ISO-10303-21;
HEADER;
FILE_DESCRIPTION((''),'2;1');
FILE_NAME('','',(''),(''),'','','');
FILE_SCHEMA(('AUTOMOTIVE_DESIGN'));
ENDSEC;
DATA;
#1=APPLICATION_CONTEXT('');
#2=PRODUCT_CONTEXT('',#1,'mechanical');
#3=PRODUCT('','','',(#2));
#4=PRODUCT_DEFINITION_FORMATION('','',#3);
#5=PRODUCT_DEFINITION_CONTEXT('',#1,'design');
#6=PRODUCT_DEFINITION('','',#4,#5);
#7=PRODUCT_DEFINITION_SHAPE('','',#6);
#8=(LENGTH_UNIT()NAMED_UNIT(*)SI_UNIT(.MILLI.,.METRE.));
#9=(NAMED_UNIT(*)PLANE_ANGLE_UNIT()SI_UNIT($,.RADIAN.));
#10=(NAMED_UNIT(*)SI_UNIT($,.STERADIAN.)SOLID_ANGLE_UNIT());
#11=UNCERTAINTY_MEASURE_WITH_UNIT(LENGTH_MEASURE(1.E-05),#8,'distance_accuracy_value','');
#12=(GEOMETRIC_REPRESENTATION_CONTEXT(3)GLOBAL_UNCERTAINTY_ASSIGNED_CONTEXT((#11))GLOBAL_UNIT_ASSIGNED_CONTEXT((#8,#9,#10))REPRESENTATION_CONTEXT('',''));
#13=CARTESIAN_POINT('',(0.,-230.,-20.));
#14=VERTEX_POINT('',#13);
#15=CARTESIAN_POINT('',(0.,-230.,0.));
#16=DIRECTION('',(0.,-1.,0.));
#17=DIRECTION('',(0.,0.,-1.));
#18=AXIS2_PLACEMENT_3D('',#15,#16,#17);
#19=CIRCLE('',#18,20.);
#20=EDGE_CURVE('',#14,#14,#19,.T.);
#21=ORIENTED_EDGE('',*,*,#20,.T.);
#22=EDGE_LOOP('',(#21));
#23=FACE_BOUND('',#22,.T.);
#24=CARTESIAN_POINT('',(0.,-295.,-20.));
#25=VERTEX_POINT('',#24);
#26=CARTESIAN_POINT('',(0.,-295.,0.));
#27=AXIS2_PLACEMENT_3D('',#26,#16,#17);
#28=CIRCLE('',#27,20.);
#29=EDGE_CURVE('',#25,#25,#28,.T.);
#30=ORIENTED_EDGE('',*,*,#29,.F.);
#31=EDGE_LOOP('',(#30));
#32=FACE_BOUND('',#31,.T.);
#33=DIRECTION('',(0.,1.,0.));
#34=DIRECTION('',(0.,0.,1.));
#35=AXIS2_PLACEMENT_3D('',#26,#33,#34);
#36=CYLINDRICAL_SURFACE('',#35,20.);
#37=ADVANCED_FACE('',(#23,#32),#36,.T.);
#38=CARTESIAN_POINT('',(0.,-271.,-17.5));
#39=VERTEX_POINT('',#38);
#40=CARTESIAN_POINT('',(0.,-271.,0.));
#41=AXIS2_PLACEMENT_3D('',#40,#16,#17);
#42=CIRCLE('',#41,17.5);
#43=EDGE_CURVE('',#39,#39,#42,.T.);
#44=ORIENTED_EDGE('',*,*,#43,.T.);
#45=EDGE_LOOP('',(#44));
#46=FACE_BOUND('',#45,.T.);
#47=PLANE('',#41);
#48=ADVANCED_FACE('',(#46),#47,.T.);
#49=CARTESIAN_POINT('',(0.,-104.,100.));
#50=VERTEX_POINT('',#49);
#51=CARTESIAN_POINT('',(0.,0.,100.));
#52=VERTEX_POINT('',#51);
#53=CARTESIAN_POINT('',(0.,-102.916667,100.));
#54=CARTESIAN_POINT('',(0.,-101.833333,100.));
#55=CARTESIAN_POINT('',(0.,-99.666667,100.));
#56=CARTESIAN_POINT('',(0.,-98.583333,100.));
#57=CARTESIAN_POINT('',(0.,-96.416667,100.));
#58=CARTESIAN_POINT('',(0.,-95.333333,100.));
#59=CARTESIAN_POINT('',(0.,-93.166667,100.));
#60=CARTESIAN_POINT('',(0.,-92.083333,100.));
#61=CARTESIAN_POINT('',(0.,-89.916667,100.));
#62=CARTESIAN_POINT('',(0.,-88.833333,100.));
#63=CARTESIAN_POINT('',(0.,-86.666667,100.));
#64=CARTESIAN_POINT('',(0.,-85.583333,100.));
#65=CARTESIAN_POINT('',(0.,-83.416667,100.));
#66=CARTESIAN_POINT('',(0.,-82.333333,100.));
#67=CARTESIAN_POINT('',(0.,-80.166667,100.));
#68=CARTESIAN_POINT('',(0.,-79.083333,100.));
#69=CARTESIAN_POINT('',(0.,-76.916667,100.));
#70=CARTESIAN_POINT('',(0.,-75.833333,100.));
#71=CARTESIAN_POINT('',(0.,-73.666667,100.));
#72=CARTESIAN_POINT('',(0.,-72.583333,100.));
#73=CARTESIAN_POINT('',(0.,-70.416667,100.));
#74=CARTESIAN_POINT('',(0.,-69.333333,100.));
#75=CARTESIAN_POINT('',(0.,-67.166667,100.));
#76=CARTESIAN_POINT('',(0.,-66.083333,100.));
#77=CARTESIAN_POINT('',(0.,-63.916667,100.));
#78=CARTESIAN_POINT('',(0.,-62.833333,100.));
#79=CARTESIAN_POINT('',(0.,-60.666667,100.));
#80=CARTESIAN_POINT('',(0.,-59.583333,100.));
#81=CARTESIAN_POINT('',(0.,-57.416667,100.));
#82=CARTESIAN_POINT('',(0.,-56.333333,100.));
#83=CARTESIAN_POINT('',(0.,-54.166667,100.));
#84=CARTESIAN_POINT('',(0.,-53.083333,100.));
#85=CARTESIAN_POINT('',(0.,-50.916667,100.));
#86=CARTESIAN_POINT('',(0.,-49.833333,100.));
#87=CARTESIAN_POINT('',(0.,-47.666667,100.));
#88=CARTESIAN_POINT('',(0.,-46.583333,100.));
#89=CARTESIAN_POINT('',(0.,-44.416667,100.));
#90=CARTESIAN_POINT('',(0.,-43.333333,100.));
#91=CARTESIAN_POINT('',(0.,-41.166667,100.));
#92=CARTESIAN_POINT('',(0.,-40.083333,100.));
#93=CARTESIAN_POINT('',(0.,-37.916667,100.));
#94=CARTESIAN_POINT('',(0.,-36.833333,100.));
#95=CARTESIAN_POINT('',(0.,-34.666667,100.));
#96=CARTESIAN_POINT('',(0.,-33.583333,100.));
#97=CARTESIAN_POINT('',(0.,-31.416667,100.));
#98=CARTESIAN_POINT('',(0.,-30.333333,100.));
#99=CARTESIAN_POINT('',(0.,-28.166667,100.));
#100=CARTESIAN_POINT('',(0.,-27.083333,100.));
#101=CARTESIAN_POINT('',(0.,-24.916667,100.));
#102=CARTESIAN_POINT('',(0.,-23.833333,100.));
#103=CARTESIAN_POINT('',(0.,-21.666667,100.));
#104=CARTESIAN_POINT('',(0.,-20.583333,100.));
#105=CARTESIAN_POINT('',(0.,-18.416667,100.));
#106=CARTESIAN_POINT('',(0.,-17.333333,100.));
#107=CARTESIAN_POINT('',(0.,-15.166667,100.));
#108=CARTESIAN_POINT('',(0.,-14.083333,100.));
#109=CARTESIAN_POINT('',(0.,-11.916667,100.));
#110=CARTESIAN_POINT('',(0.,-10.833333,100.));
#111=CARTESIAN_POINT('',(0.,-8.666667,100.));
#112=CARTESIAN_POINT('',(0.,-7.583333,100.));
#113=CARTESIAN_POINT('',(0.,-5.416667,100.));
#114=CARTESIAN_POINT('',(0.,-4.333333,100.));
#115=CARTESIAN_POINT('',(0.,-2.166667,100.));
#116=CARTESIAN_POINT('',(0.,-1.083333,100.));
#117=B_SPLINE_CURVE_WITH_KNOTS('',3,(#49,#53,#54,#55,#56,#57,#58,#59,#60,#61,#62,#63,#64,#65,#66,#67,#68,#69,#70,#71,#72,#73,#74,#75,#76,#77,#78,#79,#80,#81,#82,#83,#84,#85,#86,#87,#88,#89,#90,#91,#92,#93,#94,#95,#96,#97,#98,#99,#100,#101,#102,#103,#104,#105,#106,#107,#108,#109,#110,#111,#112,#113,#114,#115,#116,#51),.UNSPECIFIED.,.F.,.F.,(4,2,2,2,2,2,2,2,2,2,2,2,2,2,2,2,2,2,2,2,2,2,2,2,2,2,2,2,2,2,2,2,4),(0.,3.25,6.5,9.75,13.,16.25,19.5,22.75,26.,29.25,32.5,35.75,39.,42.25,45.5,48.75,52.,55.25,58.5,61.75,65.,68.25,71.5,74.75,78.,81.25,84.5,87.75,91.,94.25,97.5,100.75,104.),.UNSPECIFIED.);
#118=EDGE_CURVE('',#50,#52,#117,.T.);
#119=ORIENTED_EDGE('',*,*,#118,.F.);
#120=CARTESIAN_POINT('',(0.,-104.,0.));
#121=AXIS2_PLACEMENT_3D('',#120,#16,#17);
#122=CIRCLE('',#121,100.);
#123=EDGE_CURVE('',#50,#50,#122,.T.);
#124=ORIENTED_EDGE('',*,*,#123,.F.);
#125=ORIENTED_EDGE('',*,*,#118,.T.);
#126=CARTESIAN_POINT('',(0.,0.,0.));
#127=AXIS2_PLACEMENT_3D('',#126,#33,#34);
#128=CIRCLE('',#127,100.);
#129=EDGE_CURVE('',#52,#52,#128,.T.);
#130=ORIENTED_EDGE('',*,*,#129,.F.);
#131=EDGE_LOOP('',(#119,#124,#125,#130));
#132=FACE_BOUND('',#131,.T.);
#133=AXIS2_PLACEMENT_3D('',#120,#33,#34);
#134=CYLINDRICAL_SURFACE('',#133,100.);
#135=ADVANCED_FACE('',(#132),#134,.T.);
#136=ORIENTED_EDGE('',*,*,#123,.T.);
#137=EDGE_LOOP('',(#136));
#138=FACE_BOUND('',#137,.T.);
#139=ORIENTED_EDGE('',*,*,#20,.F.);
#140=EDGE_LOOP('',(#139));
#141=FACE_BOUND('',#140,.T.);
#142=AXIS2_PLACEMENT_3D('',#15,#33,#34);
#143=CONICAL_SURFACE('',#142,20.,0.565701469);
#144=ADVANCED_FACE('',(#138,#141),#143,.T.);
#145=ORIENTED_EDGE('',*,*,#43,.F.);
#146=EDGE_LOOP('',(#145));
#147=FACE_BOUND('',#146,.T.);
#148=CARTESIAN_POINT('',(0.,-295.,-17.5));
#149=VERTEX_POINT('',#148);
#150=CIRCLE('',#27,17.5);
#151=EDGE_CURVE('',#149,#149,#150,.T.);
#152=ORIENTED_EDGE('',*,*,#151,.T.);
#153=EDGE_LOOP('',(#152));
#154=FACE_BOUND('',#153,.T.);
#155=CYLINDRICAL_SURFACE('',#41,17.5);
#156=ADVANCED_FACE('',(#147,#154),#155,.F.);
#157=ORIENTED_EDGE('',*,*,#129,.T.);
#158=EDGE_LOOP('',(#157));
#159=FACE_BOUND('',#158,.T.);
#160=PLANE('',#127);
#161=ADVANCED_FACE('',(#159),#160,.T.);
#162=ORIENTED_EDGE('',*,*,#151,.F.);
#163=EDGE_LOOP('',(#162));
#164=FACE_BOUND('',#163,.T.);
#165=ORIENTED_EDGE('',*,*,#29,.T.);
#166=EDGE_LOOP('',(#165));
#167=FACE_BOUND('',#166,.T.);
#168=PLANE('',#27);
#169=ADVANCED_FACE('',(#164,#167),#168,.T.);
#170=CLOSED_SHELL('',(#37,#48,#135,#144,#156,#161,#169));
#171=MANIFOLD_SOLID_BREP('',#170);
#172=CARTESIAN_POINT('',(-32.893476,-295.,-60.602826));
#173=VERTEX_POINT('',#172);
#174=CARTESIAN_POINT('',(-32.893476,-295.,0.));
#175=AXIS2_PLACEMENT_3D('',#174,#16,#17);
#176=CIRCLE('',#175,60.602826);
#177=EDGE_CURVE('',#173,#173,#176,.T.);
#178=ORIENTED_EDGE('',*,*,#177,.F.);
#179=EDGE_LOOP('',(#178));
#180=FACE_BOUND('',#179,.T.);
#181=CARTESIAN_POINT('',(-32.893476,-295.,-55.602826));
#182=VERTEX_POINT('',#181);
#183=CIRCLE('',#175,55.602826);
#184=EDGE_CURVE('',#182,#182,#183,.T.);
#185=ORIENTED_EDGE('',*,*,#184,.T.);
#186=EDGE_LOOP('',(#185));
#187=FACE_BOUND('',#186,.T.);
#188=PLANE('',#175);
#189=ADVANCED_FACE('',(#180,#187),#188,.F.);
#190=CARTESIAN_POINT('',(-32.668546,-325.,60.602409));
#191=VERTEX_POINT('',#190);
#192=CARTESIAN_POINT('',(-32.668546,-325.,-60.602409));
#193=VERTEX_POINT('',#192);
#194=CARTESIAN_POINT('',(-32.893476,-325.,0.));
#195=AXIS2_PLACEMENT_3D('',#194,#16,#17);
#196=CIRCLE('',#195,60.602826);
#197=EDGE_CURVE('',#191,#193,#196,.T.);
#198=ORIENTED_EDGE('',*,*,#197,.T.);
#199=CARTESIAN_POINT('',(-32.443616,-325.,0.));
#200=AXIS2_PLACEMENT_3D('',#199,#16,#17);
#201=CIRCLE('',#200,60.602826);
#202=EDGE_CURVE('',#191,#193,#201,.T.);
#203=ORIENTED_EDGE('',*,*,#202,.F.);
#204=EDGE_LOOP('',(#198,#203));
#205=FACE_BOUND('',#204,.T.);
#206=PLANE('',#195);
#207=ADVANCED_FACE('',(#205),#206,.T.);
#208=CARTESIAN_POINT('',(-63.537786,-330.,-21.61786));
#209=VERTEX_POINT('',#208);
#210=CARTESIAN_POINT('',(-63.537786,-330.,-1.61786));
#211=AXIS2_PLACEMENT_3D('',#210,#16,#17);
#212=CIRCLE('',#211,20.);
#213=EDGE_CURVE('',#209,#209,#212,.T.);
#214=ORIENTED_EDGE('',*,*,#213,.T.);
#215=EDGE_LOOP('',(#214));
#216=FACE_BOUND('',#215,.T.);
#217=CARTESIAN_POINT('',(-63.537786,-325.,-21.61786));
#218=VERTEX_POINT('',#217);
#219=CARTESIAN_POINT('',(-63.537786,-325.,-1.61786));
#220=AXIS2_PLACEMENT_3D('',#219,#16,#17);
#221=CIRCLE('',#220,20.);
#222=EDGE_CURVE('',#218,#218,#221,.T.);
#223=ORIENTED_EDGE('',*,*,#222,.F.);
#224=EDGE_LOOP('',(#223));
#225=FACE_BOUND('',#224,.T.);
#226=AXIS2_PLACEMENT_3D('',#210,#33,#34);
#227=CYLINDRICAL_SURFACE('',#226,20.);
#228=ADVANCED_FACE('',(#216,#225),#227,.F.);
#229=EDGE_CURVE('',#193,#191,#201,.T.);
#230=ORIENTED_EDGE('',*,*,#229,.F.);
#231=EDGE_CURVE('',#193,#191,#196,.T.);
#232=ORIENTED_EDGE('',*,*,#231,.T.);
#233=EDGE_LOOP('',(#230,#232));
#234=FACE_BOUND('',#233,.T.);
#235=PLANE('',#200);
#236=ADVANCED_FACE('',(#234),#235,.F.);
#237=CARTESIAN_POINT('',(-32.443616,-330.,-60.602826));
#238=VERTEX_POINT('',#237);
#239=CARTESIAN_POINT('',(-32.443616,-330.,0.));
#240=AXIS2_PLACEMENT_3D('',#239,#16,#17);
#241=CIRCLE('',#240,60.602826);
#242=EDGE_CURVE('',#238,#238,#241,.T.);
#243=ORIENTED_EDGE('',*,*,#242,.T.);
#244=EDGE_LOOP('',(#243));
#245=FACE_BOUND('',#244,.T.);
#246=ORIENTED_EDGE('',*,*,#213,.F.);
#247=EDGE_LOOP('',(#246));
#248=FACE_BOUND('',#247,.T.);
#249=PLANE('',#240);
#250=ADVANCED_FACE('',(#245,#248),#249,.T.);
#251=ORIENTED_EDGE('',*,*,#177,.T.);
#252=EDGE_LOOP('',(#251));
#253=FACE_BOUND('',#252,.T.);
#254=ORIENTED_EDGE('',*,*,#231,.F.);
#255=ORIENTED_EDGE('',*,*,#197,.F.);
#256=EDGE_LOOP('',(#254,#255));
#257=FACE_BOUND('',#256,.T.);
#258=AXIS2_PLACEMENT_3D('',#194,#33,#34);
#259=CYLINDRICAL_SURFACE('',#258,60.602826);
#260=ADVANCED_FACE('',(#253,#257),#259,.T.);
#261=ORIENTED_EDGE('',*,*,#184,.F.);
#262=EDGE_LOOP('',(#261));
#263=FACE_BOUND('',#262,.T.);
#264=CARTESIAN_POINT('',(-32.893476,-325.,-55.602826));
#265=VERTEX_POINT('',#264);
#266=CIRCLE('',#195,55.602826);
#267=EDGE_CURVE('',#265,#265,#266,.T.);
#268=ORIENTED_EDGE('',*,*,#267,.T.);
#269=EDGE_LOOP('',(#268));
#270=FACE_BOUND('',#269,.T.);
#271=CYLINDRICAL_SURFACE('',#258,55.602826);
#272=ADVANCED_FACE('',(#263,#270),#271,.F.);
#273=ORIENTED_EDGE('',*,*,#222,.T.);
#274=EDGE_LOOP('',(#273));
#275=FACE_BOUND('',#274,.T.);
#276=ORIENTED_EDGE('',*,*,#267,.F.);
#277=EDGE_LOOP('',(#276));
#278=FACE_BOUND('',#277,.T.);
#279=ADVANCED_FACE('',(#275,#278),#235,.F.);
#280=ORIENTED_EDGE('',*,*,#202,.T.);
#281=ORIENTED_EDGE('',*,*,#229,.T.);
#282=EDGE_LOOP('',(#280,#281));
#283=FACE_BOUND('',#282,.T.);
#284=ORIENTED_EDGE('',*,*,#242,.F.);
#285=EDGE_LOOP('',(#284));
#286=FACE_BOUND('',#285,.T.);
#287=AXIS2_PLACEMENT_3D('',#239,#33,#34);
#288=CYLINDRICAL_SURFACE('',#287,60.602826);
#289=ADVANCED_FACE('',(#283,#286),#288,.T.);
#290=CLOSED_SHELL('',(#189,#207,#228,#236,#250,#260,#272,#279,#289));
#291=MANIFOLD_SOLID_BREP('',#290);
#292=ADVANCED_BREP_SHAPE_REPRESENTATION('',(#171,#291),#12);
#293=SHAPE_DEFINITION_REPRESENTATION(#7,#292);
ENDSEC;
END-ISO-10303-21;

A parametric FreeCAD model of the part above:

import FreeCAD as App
import Part
import Sketcher

doc = App.newDocument("Part")
body = doc.addObject("PartDesign::Body", "Body")

# Sketch on XZ plane
sketch1 = doc.addObject("Sketcher::SketchObject", "Sketch")
body.addObject(sketch1)
sketch1.AttachmentSupport = (doc.XZ_Plane, [""])
sketch1.MapMode = "FlatFace"
sketch1.addGeometry(Part.Circle(App.Vector(0, 0, 0), App.Vector(0, 0, 1), 100), False)
sketch1.addConstraint([
    Sketcher.Constraint("Coincident", 0, 3, -1, 1),
    Sketcher.Constraint("Diameter", 0, 200.0),
])
pad1 = doc.addObject("PartDesign::Pad", "Pad")
body.addObject(pad1)
pad1.Profile = sketch1
pad1.Length = 104

# Sketch on XZ plane
sketch2 = doc.addObject("Sketcher::SketchObject", "Sketch001")
body.addObject(sketch2)
sketch2.AttachmentSupport = (doc.XZ_Plane, [""])
sketch2.MapMode = "FlatFace"
sketch2.AttachmentOffset = App.Placement(App.Vector(0, 0, 230), App.Rotation())
sketch2.addGeometry(Part.Circle(App.Vector(0, 0, 0), App.Vector(0, 0, 1), 20), False)
sketch2.addConstraint([
    Sketcher.Constraint("Coincident", 0, 3, -1, 1),
    Sketcher.Constraint("Diameter", 0, 40.0),
])

# Sketch on XZ plane
sketch3 = doc.addObject("Sketcher::SketchObject", "Sketch002")
body.addObject(sketch3)
sketch3.AttachmentSupport = (doc.XZ_Plane, [""])
sketch3.MapMode = "FlatFace"
sketch3.AttachmentOffset = App.Placement(App.Vector(0, 0, 104), App.Rotation())
sketch3.addGeometry(Part.Circle(App.Vector(0, 0, 0), App.Vector(0, 0, 1), 100), False)
sketch3.addConstraint([
    Sketcher.Constraint("Coincident", 0, 3, -1, 1),
    Sketcher.Constraint("Diameter", 0, 200.0),
])

additiveloft = doc.addObject("PartDesign::AdditiveLoft", "AdditiveLoft")
body.addObject(additiveloft)
additiveloft.Profile = sketch2
additiveloft.Sections = [sketch3]

# Sketch on XZ plane
sketch4 = doc.addObject("Sketcher::SketchObject", "Sketch003")
body.addObject(sketch4)
sketch4.AttachmentSupport = (doc.XZ_Plane, [""])
sketch4.MapMode = "FlatFace"
sketch4.AttachmentOffset = App.Placement(App.Vector(0, 0, 230), App.Rotation())
sketch4.addGeometry(Part.Circle(App.Vector(0, 0, 0), App.Vector(0, 0, 1), 20), False)
sketch4.addConstraint([
    Sketcher.Constraint("Coincident", 0, 3, -1, 1),
    Sketcher.Constraint("Diameter", 0, 40.0),
])
pad2 = doc.addObject("PartDesign::Pad", "Pad001")
body.addObject(pad2)
pad2.Profile = sketch4
pad2.Length = 65

# Sketch on XZ plane
sketch5 = doc.addObject("Sketcher::SketchObject", "Sketch004")
body.addObject(sketch5)
sketch5.AttachmentSupport = (doc.XZ_Plane, [""])
sketch5.MapMode = "FlatFace"
sketch5.AttachmentOffset = App.Placement(App.Vector(0, 0, 295), App.Rotation())
sketch5.addGeometry(Part.Circle(App.Vector(0, 0, 0), App.Vector(0, 0, 1), 18), False)
sketch5.addConstraint([
    Sketcher.Constraint("Coincident", 0, 3, -1, 1),
    Sketcher.Constraint("Diameter", 0, 35.0),
])
pocket1 = doc.addObject("PartDesign::Pocket", "Pocket")
body.addObject(pocket1)
pocket1.Profile = sketch5
pocket1.Length = 24
body2 = doc.addObject("PartDesign::Body", "Body001")

# Sketch on XZ plane
sketch6 = doc.addObject("Sketcher::SketchObject", "Sketch005")
body2.addObject(sketch6)
sketch6.AttachmentSupport = (doc.getObject("XZ_Plane001"), [""])
sketch6.MapMode = "FlatFace"
sketch6.AttachmentOffset = App.Placement(App.Vector(0, 0, 295), App.Rotation())
sketch6.addGeometry([
    Part.Circle(App.Vector(-33, 0, 0), App.Vector(0, 0, 1), 61),
    Part.Circle(App.Vector(-33, 0, 0), App.Vector(0, 0, 1), 56),
], False)
sketch6.addConstraint([
    Sketcher.Constraint("Coincident", 1, 3, 0, 3),
    Sketcher.Constraint("PointOnObject", 0, 3, -1),
    Sketcher.Constraint("Diameter", 0, 121.205652),
    Sketcher.Constraint("Diameter", 1, 111.205652),
    Sketcher.Constraint("DistanceX", 0, 3, -1, 1, 32.893476),
])
pad3 = doc.addObject("PartDesign::Pad", "Pad002")
body2.addObject(pad3)
pad3.Profile = sketch6
pad3.Length = 30

# Sketch on XZ plane
sketch7 = doc.addObject("Sketcher::SketchObject", "Sketch006")
body2.addObject(sketch7)
sketch7.AttachmentSupport = (doc.getObject("XZ_Plane001"), [""])
sketch7.MapMode = "FlatFace"
sketch7.AttachmentOffset = App.Placement(App.Vector(0, 0, 325), App.Rotation())
sketch7.addGeometry([
    Part.Circle(App.Vector(-32, 0, 0), App.Vector(0, 0, 1), 61),
    Part.Circle(App.Vector(-64, -2, 0), App.Vector(0, 0, 1), 20),
], False)
sketch7.addConstraint([
    Sketcher.Constraint("PointOnObject", 0, 3, -1),
    Sketcher.Constraint("Diameter", 1, 40.0),
    Sketcher.Constraint("Diameter", 0, 121.205652),
    Sketcher.Constraint("DistanceY", 1, 3, -1, 1, 1.61786),
    Sketcher.Constraint("DistanceX", 1, 3, 0, 3, 31.094171),
    Sketcher.Constraint("DistanceX", 0, 3, -1, 1, 32.443616),
])
pad4 = doc.addObject("PartDesign::Pad", "Pad003")
body2.addObject(pad4)
pad4.Profile = sketch7
pad4.Length = 5

doc.recompute()
